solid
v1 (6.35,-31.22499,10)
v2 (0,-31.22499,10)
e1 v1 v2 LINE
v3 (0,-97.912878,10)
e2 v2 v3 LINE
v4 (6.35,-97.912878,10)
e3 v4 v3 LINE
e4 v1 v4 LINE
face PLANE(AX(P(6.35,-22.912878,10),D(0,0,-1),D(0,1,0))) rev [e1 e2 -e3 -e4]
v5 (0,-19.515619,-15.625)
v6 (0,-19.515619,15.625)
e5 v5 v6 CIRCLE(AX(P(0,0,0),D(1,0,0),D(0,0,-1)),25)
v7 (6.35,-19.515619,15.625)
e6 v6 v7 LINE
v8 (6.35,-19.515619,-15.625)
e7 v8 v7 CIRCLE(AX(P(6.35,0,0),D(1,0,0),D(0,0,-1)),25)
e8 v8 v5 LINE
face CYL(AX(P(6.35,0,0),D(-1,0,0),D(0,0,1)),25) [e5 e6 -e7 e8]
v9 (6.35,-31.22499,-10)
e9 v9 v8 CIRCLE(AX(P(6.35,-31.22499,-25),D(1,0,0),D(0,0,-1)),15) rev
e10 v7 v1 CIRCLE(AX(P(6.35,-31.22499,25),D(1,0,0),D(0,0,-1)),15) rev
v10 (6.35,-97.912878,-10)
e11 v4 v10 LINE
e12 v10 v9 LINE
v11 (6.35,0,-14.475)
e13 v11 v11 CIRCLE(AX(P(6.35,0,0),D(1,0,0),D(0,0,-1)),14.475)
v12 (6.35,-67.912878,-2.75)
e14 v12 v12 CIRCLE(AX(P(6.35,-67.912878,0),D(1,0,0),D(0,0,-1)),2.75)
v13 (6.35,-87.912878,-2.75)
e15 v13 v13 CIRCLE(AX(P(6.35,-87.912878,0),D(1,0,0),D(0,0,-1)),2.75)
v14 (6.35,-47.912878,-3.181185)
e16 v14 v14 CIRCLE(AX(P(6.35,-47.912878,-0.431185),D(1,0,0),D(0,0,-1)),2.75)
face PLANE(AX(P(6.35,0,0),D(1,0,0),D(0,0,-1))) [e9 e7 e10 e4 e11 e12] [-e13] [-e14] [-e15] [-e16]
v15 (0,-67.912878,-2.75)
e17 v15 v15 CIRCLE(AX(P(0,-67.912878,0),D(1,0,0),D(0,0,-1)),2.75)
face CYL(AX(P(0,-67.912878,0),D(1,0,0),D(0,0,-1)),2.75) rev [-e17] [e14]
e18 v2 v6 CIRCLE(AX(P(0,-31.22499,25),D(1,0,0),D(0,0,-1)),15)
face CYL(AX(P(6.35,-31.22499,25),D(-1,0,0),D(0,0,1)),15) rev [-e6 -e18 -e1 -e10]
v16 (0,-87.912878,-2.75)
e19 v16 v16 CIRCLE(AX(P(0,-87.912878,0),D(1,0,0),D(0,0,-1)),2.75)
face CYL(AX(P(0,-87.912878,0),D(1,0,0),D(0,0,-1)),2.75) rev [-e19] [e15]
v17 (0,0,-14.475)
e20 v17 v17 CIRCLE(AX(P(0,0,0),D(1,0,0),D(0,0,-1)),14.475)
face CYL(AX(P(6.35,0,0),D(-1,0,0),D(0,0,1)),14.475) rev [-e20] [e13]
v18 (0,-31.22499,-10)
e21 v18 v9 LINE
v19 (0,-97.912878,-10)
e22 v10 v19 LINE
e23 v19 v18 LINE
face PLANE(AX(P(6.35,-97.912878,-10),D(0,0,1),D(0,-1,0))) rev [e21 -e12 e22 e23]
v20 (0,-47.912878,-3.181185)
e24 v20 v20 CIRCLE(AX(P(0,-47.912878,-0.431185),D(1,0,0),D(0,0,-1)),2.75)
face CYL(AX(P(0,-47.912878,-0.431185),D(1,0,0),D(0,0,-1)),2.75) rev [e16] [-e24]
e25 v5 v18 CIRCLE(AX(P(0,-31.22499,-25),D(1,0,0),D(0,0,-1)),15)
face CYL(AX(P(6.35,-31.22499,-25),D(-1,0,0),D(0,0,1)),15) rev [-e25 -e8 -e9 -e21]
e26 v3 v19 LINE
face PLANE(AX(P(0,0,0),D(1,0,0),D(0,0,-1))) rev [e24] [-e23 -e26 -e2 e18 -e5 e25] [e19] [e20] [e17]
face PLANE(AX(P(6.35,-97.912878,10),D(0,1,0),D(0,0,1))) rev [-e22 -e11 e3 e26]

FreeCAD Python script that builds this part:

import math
import FreeCAD as App
import Part
import Sketcher
from FreeCAD import Vector
Q = App.Units.Quantity


def edges_at(feature, points):
    """Names of the edges that pass closest to the given points."""
    edges = feature.Shape.Edges
    near = lambda p: min(range(len(edges)), key=lambda i: edges[i].distToShape(Part.Vertex(*p))[0])
    return sorted({f"Edge{near(p) + 1}" for p in points})

doc = App.newDocument("Part")
params = doc.addObject("Spreadsheet::Sheet", "Params")
for row, (alias, value) in enumerate([
    ("sketch1_radius", "25 mm"),
    ("sketch1_diameter", "28.95 mm"),
    ("sketch1_width", "75 mm"),
    ("sketch1_height", "20 mm"),
    ("pad1_length", "6.35 mm"),
    ("sketch2_diameter", "5.5 mm"),
    ("fillet_radius", "15 mm"),
], start=1):
    params.set(f"A{row}", alias)
    params.set(f"B{row}", "=" + value)
    params.setAlias(f"B{row}", alias)

body = doc.addObject("PartDesign::Body", "Body")

# Sketch on YZ plane
sketch1 = body.newObject("Sketcher::SketchObject", "Sketch")
sketch1.AttachmentSupport = (doc.getObject("YZ_Plane"), [""])
sketch1.MapMode = "FlatFace"
sketch1.addGeometry([
    Part.LineSegment(Vector(-23, 10, 0), Vector(-98, 10, 0)),  # 0
    Part.LineSegment(Vector(-98, 10, 0), Vector(-98, -10, 0)),  # 1
    Part.LineSegment(Vector(-98, -10, 0), Vector(-23, -10, 0)),  # 2
    Part.ArcOfCircle(Part.Circle(Vector(0, 0, 0), Vector(0, 0, 1), 25), math.radians(-156), math.radians(156)),  # 3
    Part.Circle(Vector(0, 0, 0), Vector(0, 0, 1), 14),  # 4
], False)
sketch1.addConstraint([
    Sketcher.Constraint("Coincident", 0, 2, 1, 1),
    Sketcher.Constraint("Coincident", 1, 2, 2, 1),
    Sketcher.Constraint("Coincident", 2, 2, 3, 1),
    Sketcher.Constraint("Coincident", 3, 2, 0, 1),
    Sketcher.Constraint("Horizontal", 0),
    Sketcher.Constraint("Vertical", 1),
    Sketcher.Constraint("Horizontal", 2),
    Sketcher.Constraint("Coincident", 3, 3, -1, 1),
    Sketcher.Constraint("Coincident", 4, 3, -1, 1),
    Sketcher.Constraint("Vertical", 2, 2, 3, 2),
    Sketcher.Constraint("Radius", 3, Q("25 mm")),
    Sketcher.Constraint("Diameter", 4, Q("28.95 mm")),
    Sketcher.Constraint("DistanceX", 0, 2, 0, 1, Q("75 mm")),
    Sketcher.Constraint("DistanceY", 1, 2, 1, 1, Q("20 mm")),
])
sketch1.setExpression("Constraints[10]", "Params.sketch1_radius")
sketch1.setExpression("Constraints[11]", "Params.sketch1_diameter")
sketch1.setExpression("Constraints[12]", "Params.sketch1_width")
sketch1.setExpression("Constraints[13]", "Params.sketch1_height")
pad1 = body.newObject("PartDesign::Pad", "Pad")
pad1.Profile = sketch1
pad1.setExpression("Length", "Params.pad1_length")

# Sketch on YZ plane
sketch2 = body.newObject("Sketcher::SketchObject", "Sketch001")
sketch2.AttachmentSupport = (doc.getObject("YZ_Plane"), [""])
sketch2.MapMode = "FlatFace"
sketch2.AttachmentOffset = App.Placement(Vector(0, 0, 6.35), App.Rotation())
sketch2.addGeometry([
    Part.Circle(Vector(-87.9, 0, 0), Vector(0, 0, 1), 2.8),
    Part.Circle(Vector(-67.9, 0, 0), Vector(0, 0, 1), 2.8),
    Part.Circle(Vector(-47.9, -0.4, 0), Vector(0, 0, 1), 2.8),
], False)
sketch2.addConstraint([
    Sketcher.Constraint("Equal", 0, 1),
    Sketcher.Constraint("Equal", 1, 2),
    Sketcher.Constraint("PointOnObject", 0, 3, -1),
    Sketcher.Constraint("PointOnObject", 1, 3, -1),
    Sketcher.Constraint("Diameter", 0, Q("5.5 mm")),
    Sketcher.Constraint("DistanceX", 0, 3, 1, 3, Q("20 mm")),
    Sketcher.Constraint("DistanceX", 1, 3, 2, 3, Q("20 mm")),
    Sketcher.Constraint("DistanceX", 0, 3, -1, 1, Q("87.912878 mm")),
    Sketcher.Constraint("DistanceY", 2, 3, -1, 1, Q("0.431185 mm")),
])
sketch2.setExpression("Constraints[4]", "Params.sketch2_diameter")
pocket1 = body.newObject("PartDesign::Pocket", "Pocket")
pocket1.Profile = sketch2
pocket1.Type = "ThroughAll"
doc.recompute()

fillet = body.newObject("PartDesign::Fillet", "Fillet")
fillet.Base = (pocket1, edges_at(pocket1, [(3.175, -22.913, 10), (3.175, -22.913, -10)]))
fillet.setExpression("Radius", "Params.fillet_radius")

doc.recompute()
